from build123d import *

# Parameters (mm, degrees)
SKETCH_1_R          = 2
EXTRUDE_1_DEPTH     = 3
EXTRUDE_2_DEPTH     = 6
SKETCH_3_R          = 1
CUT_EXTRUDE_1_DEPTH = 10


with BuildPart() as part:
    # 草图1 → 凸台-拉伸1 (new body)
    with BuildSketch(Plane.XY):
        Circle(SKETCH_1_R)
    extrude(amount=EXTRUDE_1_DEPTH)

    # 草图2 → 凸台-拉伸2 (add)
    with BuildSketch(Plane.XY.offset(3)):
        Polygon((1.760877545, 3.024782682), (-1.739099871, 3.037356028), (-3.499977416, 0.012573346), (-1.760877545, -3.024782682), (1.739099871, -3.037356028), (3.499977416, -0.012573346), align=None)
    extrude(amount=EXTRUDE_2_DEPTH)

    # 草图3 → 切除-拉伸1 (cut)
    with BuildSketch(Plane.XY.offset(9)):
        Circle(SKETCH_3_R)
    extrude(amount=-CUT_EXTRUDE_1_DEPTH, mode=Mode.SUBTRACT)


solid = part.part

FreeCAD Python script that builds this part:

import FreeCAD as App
import Part
import Sketcher

V = App.Vector


def add_polygon(sketch, points):
    """Adds a closed chain of lines whose ends are joined by coincident constraints."""
    first, n = sketch.GeometryCount, len(points)
    for a, b in zip(points, points[1:] + points[:1]):
        sketch.addGeometry(Part.LineSegment(App.Vector(*a, 0), App.Vector(*b, 0)), False)
    for i in range(n):
        sketch.addConstraint(Sketcher.Constraint("Coincident", first + i, 2, first + (i + 1) % n, 1))

doc = App.newDocument("Part")
body = doc.addObject("PartDesign::Body", "Body")

# Sketch on XY plane
sketch1 = body.newObject("Sketcher::SketchObject", "Sketch")
sketch1.AttachmentSupport = (doc.getObject("XY_Plane"), [""])
sketch1.MapMode = "FlatFace"
sketch1.addGeometry(Part.Circle(V(0, 0, 0), V(0, 0, 1), 2), False)
sketch1.addConstraint(Sketcher.Constraint("Coincident", 0, 3, -1, 1))
sketch1.addConstraint(Sketcher.Constraint("Diameter", 0, 4.0))
pad1 = body.newObject("PartDesign::Pad", "Pad")
pad1.Profile = sketch1
pad1.Length = 3

# Sketch on XY plane
sketch2 = body.newObject("Sketcher::SketchObject", "Sketch001")
sketch2.AttachmentSupport = (doc.getObject("XY_Plane"), [""])
sketch2.MapMode = "FlatFace"
sketch2.AttachmentOffset = App.Placement(V(0, 0, 3), App.Rotation())
add_polygon(sketch2, [(1.8, 3), (-1.7, 3), (-3.5, 0), (-1.8, -3), (1.7, -3), (3.5, 0)])  # lines 0-5
sketch2.addConstraint(Sketcher.Constraint("Symmetric", 0, 2, 3, 2, -1, 1))
sketch2.addConstraint(Sketcher.Constraint("Symmetric", 1, 2, 4, 2, -1, 1))
sketch2.addConstraint(Sketcher.Constraint("Symmetric", 2, 2, 5, 2, -1, 1))
sketch2.addConstraint(Sketcher.Constraint("Equal", 0, 1))
sketch2.addConstraint(Sketcher.Constraint("Equal", 1, 2))
sketch2.addConstraint(Sketcher.Constraint("Distance", 0, 3.5))
sketch2.addConstraint(Sketcher.Constraint("DistanceX", 0, 2, -1, 1, 1.7391))
sketch2.addConstraint(Sketcher.Constraint("DistanceX", 1, 2, 2, 2, 1.7391))
sketch2.addConstraint(Sketcher.Constraint("DistanceY", 3, 2, 1, 2, 3.049929))
pad2 = body.newObject("PartDesign::Pad", "Pad001")
pad2.Profile = sketch2
pad2.Length = 6

# Sketch on XY plane
sketch3 = body.newObject("Sketcher::SketchObject", "Sketch002")
sketch3.AttachmentSupport = (doc.getObject("XY_Plane"), [""])
sketch3.MapMode = "FlatFace"
sketch3.AttachmentOffset = App.Placement(V(0, 0, 9), App.Rotation())
sketch3.addGeometry(Part.Circle(V(0, 0, 0), V(0, 0, 1), 1), False)
sketch3.addConstraint(Sketcher.Constraint("Coincident", 0, 3, -1, 1))
sketch3.addConstraint(Sketcher.Constraint("Diameter", 0, 2.0))
pocket1 = body.newObject("PartDesign::Pocket", "Pocket")
pocket1.Profile = sketch3
pocket1.Length = 10

doc.recompute()
